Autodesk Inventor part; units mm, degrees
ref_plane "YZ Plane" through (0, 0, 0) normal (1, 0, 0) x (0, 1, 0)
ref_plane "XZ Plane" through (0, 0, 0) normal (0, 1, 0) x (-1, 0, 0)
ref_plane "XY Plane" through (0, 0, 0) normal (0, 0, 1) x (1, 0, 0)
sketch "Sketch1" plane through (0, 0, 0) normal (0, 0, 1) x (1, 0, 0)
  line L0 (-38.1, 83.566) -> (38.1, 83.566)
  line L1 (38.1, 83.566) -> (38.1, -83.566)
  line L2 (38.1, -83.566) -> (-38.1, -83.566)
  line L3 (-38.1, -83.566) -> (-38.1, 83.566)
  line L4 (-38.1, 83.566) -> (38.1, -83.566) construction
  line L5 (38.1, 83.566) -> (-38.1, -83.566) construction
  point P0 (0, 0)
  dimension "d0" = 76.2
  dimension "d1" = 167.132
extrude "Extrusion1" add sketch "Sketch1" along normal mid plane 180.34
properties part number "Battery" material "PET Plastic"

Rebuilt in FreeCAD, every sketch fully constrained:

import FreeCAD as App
import Part
import Sketcher
Q = App.Units.Quantity


def add_polygon(sketch, points):
    """Adds a closed chain of lines whose ends are joined by coincident constraints."""
    first, n = sketch.GeometryCount, len(points)
    for a, b in zip(points, points[1:] + points[:1]):
        sketch.addGeometry(Part.LineSegment(App.Vector(*a, 0), App.Vector(*b, 0)), False)
    for i in range(n):
        sketch.addConstraint(Sketcher.Constraint("Coincident", first + i, 2, first + (i + 1) % n, 1))

doc = App.newDocument("Part")
params = doc.addObject("Spreadsheet::Sheet", "Params")
for row, (alias, value) in enumerate([
    ("sketch1_width", "3 in"),
    ("sketch1_height", "6.58 in"),
    ("pad1_length", "7.1 in"),
], start=1):
    params.set(f"A{row}", alias)
    params.set(f"B{row}", "=" + value)
    params.setAlias(f"B{row}", alias)

body = doc.addObject("PartDesign::Body", "Body")

sketch1 = body.newObject("Sketcher::SketchObject", "Sketch")
sketch1.AttachmentSupport = (doc.getObject("XY_Plane"), [""])
sketch1.MapMode = "FlatFace"
add_polygon(sketch1, [(38.1, 83.566), (-38.1, 83.566), (-38.1, -83.566), (38.1, -83.566)])
sketch1.addConstraint([
    Sketcher.Constraint("Horizontal", 0),
    Sketcher.Constraint("Vertical", 1),
    Sketcher.Constraint("Horizontal", 2),
    Sketcher.Constraint("Vertical", 3),
    Sketcher.Constraint("Symmetric", 0, 2, 2, 2, -1, 1),
    Sketcher.Constraint("DistanceX", 0, 2, 0, 1, Q("3 in")),
    Sketcher.Constraint("DistanceY", 1, 2, 1, 1, Q("6.58 in")),
])
sketch1.setExpression("Constraints[9]", "Params.sketch1_width")
sketch1.setExpression("Constraints[10]", "Params.sketch1_height")
pad1 = body.newObject("PartDesign::Pad", "Pad")
pad1.Profile = sketch1
pad1.setExpression("Length", "Params.pad1_length")
pad1.Midplane = True

doc.recompute()
